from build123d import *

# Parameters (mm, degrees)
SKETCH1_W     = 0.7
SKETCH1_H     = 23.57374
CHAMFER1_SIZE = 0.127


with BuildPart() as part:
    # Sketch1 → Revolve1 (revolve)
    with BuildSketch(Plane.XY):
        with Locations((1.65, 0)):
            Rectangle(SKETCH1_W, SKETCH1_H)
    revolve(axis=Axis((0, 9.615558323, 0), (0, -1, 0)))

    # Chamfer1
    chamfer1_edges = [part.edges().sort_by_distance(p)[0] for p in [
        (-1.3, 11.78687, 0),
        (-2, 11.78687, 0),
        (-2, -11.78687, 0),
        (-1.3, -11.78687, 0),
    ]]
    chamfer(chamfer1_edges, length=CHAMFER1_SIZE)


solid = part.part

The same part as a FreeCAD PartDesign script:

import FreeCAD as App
import Part
import Sketcher

V = App.Vector
Q = App.Units.Quantity


def edges_at(feature, points):
    """Names of the edges that pass closest to the given points."""
    edges = feature.Shape.Edges
    near = lambda p: min(range(len(edges)), key=lambda i: edges[i].distToShape(Part.Vertex(*p))[0])
    return sorted({f"Edge{near(p) + 1}" for p in points})


def add_polygon(sketch, points):
    """Adds a closed chain of lines whose ends are joined by coincident constraints."""
    first, n = sketch.GeometryCount, len(points)
    for a, b in zip(points, points[1:] + points[:1]):
        sketch.addGeometry(Part.LineSegment(App.Vector(*a, 0), App.Vector(*b, 0)), False)
    for i in range(n):
        sketch.addConstraint(Sketcher.Constraint("Coincident", first + i, 2, first + (i + 1) % n, 1))

doc = App.newDocument("Part")
body = doc.addObject("PartDesign::Body", "Body")

# Sketch on XY plane
sketch1 = body.newObject("Sketcher::SketchObject", "Sketch")
sketch1.AttachmentSupport = (doc.getObject("XY_Plane"), [""])
sketch1.MapMode = "FlatFace"
add_polygon(sketch1, [(1.3, 11.8), (1.3, -11.8), (2, -11.8), (2, 11.8)])  # lines 0-3
sketch1.addConstraint(Sketcher.Constraint("Vertical", 0))
sketch1.addConstraint(Sketcher.Constraint("Horizontal", 1))
sketch1.addConstraint(Sketcher.Constraint("Vertical", 2))
sketch1.addConstraint(Sketcher.Constraint("Horizontal", 3))
sketch1.addConstraint(Sketcher.Constraint("DistanceX", 1, 1, 1, 2, Q("0.7 mm")))
sketch1.addConstraint(Sketcher.Constraint("DistanceX", -1, 1, 1, 2, Q("2 mm")))
sketch1.addConstraint(Sketcher.Constraint("DistanceY", 0, 2, 0, 1, Q("23.57374 mm")))
sketch1.addConstraint(Sketcher.Constraint("DistanceY", 0, 2, -1, 1, Q("11.78687 mm")))
revolution = body.newObject("PartDesign::Revolution", "Revolution")
revolution.Profile = sketch1
revolution.ReferenceAxis = (sketch1, ["V_Axis"])
revolution.Angle = 360
doc.recompute()

chamfer = body.newObject("PartDesign::Chamfer", "Chamfer")
chamfer.Base = (revolution, edges_at(revolution, [
    (-1.3, 11.787, 0),
    (-2, 11.787, 0),
    (-2, -11.787, 0),
    (-1.3, -11.787, 0),
]))
chamfer.Size = 0.127

doc.recompute()
